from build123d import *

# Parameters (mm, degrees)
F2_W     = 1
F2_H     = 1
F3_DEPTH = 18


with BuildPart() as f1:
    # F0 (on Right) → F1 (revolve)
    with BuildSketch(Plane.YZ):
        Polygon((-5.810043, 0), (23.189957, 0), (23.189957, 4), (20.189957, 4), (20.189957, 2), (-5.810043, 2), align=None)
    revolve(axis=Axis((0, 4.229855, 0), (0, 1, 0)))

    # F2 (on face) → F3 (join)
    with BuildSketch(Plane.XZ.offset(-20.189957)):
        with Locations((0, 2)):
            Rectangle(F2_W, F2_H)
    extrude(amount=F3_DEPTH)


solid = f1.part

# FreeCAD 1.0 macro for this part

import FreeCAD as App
import Part
import Sketcher
Q = App.Units.Quantity


def add_polygon(sketch, points):
    """Adds a closed chain of lines whose ends are joined by coincident constraints."""
    first, n = sketch.GeometryCount, len(points)
    for a, b in zip(points, points[1:] + points[:1]):
        sketch.addGeometry(Part.LineSegment(App.Vector(*a, 0), App.Vector(*b, 0)), False)
    for i in range(n):
        sketch.addConstraint(Sketcher.Constraint("Coincident", first + i, 2, first + (i + 1) % n, 1))

doc = App.newDocument("Part")
body = doc.addObject("PartDesign::Body", "Body")

sketch1 = body.newObject("Sketcher::SketchObject", "Sketch")
sketch1.AttachmentSupport = (doc.getObject("YZ_Plane"), [""])
sketch1.MapMode = "FlatFace"
add_polygon(sketch1, [(-5.8, 0), (23.2, 0), (23.2, 4), (20.2, 4), (20.2, 2), (-5.8, 2)])
sketch1.addConstraint([
    Sketcher.Constraint("Horizontal", 0),
    Sketcher.Constraint("Vertical", 1),
    Sketcher.Constraint("Horizontal", 2),
    Sketcher.Constraint("Vertical", 3),
    Sketcher.Constraint("Horizontal", 4),
    Sketcher.Constraint("Vertical", 5),
    Sketcher.Constraint("PointOnObject", 0, 2, -1),
    Sketcher.Constraint("Equal", 3, 5),
    Sketcher.Constraint("DistanceX", 0, 1, 0, 2, Q("29 mm")),
    Sketcher.Constraint("DistanceX", 2, 2, 2, 1, Q("3 mm")),
    Sketcher.Constraint("DistanceY", 1, 1, 1, 2, Q("4 mm")),
    Sketcher.Constraint("DistanceX", -1, 1, 0, 2, Q("23.189957 mm")),
])
revolution = body.newObject("PartDesign::Revolution", "Revolution")
revolution.Profile = sketch1
revolution.ReferenceAxis = (sketch1, ["H_Axis"])
revolution.Angle = 360

sketch2 = body.newObject("Sketcher::SketchObject", "Sketch001")
sketch2.AttachmentSupport = (doc.getObject("XZ_Plane"), [""])
sketch2.MapMode = "FlatFace"
sketch2.AttachmentOffset = App.Placement(App.Vector(0, 0, -20.189957), App.Rotation())
add_polygon(sketch2, [(-0.5, 2.5), (-0.5, 1.5), (0.5, 1.5), (0.5, 2.5)])
sketch2.addConstraint([
    Sketcher.Constraint("Vertical", 0),
    Sketcher.Constraint("Horizontal", 1),
    Sketcher.Constraint("Vertical", 2),
    Sketcher.Constraint("Horizontal", 3),
    Sketcher.Constraint("Equal", 3, 0),
    Sketcher.Constraint("DistanceX", 1, 1, 1, 2, Q("1 mm")),
    Sketcher.Constraint("DistanceX", 0, 2, -1, 1, Q("0.5 mm")),
    Sketcher.Constraint("DistanceY", -1, 1, 0, 2, Q("1.5 mm")),
])
pad1 = body.newObject("PartDesign::Pad", "Pad")
pad1.Profile = sketch2
pad1.Length = 18

doc.recompute()
